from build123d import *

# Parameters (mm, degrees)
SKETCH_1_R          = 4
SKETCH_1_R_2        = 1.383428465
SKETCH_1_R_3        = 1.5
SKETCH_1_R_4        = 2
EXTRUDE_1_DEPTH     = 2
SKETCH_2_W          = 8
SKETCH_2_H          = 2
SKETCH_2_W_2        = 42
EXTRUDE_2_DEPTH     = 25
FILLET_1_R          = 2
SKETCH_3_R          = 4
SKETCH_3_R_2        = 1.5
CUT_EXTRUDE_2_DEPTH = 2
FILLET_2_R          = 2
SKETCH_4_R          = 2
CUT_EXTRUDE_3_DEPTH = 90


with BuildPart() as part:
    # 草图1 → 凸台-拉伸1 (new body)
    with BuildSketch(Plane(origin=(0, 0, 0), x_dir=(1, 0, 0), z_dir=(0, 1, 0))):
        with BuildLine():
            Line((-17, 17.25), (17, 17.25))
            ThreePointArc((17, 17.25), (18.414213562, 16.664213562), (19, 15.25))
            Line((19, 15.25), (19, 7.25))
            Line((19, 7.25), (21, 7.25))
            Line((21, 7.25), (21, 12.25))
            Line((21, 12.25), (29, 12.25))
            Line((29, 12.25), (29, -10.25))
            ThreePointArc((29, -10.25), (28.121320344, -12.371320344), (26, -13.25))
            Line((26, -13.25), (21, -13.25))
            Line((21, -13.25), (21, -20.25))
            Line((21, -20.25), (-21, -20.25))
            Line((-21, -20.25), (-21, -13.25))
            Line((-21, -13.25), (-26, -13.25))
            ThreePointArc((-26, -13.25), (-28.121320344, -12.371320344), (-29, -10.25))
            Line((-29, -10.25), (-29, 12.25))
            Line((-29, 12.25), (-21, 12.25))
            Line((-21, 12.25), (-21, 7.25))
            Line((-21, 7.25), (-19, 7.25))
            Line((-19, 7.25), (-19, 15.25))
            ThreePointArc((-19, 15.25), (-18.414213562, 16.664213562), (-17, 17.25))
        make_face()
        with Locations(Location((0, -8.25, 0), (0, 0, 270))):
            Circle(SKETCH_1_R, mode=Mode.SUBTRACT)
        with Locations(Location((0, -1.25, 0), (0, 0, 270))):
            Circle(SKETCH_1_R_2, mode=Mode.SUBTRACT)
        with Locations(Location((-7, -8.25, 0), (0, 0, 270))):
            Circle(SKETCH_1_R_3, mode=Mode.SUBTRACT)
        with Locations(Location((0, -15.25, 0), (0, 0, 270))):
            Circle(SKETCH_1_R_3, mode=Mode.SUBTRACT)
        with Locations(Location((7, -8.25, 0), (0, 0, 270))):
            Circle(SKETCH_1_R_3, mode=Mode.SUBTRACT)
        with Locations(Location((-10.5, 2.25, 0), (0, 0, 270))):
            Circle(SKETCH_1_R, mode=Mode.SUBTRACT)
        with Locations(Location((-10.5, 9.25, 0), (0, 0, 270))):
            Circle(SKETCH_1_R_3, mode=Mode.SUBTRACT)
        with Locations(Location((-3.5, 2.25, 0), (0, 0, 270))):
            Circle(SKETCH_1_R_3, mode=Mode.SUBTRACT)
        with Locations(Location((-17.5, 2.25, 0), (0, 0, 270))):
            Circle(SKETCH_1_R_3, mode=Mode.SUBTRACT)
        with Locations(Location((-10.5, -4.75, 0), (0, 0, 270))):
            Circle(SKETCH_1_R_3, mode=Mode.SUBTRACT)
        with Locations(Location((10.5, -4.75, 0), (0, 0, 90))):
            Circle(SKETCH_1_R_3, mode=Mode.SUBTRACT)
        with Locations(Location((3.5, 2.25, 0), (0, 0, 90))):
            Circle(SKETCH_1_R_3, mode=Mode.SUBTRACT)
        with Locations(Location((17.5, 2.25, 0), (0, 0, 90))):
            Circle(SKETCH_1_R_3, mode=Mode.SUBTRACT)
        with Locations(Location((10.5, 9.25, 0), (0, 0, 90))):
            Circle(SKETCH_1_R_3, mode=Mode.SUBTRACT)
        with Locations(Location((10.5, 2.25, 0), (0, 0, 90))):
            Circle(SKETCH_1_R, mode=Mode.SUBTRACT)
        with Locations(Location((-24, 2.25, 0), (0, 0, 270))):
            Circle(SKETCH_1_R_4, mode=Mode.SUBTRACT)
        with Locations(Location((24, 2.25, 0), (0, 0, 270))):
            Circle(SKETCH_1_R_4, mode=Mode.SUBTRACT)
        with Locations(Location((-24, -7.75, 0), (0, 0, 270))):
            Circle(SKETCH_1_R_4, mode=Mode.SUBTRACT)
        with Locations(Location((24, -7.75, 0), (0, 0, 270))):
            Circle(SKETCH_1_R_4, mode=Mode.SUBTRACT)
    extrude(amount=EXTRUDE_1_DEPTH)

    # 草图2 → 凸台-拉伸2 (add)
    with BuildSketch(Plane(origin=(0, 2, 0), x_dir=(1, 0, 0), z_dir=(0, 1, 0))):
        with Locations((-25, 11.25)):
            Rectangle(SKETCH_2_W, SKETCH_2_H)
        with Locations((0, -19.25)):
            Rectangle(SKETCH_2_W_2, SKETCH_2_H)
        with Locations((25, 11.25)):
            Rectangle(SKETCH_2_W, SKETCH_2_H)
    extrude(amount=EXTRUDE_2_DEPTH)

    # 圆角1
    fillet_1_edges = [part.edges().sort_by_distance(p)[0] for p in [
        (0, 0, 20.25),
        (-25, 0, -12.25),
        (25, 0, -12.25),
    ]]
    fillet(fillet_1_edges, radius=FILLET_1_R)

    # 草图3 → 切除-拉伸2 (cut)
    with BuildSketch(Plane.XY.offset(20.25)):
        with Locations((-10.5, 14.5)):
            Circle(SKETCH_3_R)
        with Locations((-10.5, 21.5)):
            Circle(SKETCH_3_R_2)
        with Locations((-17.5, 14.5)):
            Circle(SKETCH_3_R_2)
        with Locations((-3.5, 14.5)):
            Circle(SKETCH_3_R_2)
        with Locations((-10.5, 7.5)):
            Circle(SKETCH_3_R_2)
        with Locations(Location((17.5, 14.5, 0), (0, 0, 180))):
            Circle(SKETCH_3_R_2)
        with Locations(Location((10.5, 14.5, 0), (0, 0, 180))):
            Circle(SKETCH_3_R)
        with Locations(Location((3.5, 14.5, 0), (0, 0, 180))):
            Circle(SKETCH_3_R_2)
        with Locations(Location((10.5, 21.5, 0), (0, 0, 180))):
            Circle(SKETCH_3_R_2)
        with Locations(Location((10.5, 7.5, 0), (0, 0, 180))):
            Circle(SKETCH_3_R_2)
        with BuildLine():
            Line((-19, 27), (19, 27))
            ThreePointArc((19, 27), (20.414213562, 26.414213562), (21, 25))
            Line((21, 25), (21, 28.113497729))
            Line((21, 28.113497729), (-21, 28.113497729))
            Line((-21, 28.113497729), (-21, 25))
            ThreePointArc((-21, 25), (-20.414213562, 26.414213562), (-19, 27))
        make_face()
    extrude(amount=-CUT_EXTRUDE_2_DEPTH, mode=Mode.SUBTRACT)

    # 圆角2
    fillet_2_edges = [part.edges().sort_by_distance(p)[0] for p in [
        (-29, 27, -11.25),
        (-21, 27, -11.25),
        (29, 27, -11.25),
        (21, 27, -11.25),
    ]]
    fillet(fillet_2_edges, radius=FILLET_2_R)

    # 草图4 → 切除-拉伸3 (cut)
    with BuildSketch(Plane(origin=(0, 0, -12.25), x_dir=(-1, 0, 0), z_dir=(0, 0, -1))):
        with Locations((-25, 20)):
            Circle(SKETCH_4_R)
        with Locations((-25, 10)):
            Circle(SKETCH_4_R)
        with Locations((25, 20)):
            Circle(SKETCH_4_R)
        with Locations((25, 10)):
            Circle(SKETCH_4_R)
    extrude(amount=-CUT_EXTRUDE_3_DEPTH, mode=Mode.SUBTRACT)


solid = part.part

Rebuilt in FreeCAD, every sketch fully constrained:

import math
import FreeCAD as App
import Part
import Sketcher

V = App.Vector


def edges_at(feature, points):
    """Names of the edges that pass closest to the given points."""
    edges = feature.Shape.Edges
    near = lambda p: min(range(len(edges)), key=lambda i: edges[i].distToShape(Part.Vertex(*p))[0])
    return sorted({f"Edge{near(p) + 1}" for p in points})


def add_polygon(sketch, points):
    """Adds a closed chain of lines whose ends are joined by coincident constraints."""
    first, n = sketch.GeometryCount, len(points)
    for a, b in zip(points, points[1:] + points[:1]):
        sketch.addGeometry(Part.LineSegment(App.Vector(*a, 0), App.Vector(*b, 0)), False)
    for i in range(n):
        sketch.addConstraint(Sketcher.Constraint("Coincident", first + i, 2, first + (i + 1) % n, 1))

doc = App.newDocument("Part")
body = doc.addObject("PartDesign::Body", "Body")

# Sketch on XZ plane
sketch1 = doc.addObject("Sketcher::SketchObject", "Sketch")
body.addObject(sketch1)
sketch1.AttachmentSupport = (doc.XZ_Plane, [""])
sketch1.MapMode = "FlatFace"
sketch1.addGeometry([
    Part.LineSegment(V(17, -17.25, 0), V(-17, -17.25, 0)),  # 0
    Part.ArcOfCircle(Part.Circle(V(-17, -15.25, 0), V(0, 0, 1), 2), math.radians(-180), math.radians(-90)),  # 1
    Part.LineSegment(V(-19, -15.25, 0), V(-19, -7.25, 0)),  # 2
    Part.LineSegment(V(-19, -7.25, 0), V(-21, -7.25, 0)),  # 3
    Part.LineSegment(V(-21, -7.25, 0), V(-21, -12.25, 0)),  # 4
    Part.LineSegment(V(-21, -12.25, 0), V(-29, -12.25, 0)),  # 5
    Part.LineSegment(V(-29, -12.25, 0), V(-29, 10.25, 0)),  # 6
    Part.ArcOfCircle(Part.Circle(V(-26, 10.25, 0), V(0, 0, 1), 3), math.radians(90), math.radians(180)),  # 7
    Part.LineSegment(V(-26, 13.25, 0), V(-21, 13.25, 0)),  # 8
    Part.LineSegment(V(-21, 13.25, 0), V(-21, 20.25, 0)),  # 9
    Part.LineSegment(V(-21, 20.25, 0), V(21, 20.25, 0)),  # 10
    Part.LineSegment(V(21, 20.25, 0), V(21, 13.25, 0)),  # 11
    Part.LineSegment(V(21, 13.25, 0), V(26, 13.25, 0)),  # 12
    Part.ArcOfCircle(Part.Circle(V(26, 10.25, 0), V(0, 0, 1), 3), math.radians(0), math.radians(90)),  # 13
    Part.LineSegment(V(29, 10.25, 0), V(29, -12.25, 0)),  # 14
    Part.LineSegment(V(29, -12.25, 0), V(21, -12.25, 0)),  # 15
    Part.LineSegment(V(21, -12.25, 0), V(21, -7.25, 0)),  # 16
    Part.LineSegment(V(21, -7.25, 0), V(19, -7.25, 0)),  # 17
    Part.LineSegment(V(19, -7.25, 0), V(19, -15.25, 0)),  # 18
    Part.ArcOfCircle(Part.Circle(V(17, -15.25, 0), V(0, 0, 1), 2), math.radians(-90), math.radians(0)),  # 19
    Part.Circle(V(24, 7.75, 0), V(0, 0, 1), 2),  # 20
    Part.Circle(V(7, 8.25, 0), V(0, 0, 1), 1.5),  # 21
    Part.Circle(V(10.5, 4.75, 0), V(0, 0, 1), 1.5),  # 22
    Part.Circle(V(0, 15.25, 0), V(0, 0, 1), 1.5),  # 23
    Part.Circle(V(0, 8.25, 0), V(0, 0, 1), 4),  # 24
    Part.Circle(V(-7, 8.25, 0), V(0, 0, 1), 1.5),  # 25
    Part.Circle(V(-10.5, 4.75, 0), V(0, 0, 1), 1.5),  # 26
    Part.Circle(V(-24, 7.75, 0), V(0, 0, 1), 2),  # 27
    Part.Circle(V(24, -2.25, 0), V(0, 0, 1), 2),  # 28
    Part.Circle(V(17.5, -2.25, 0), V(0, 0, 1), 1.5),  # 29
    Part.Circle(V(10.5, -2.25, 0), V(0, 0, 1), 4),  # 30
    Part.Circle(V(3.5, -2.25, 0), V(0, 0, 1), 1.5),  # 31
    Part.Circle(V(10.5, -9.25, 0), V(0, 0, 1), 1.5),  # 32
    Part.Circle(V(0, 1.25, 0), V(0, 0, 1), 1.383428),  # 33
    Part.Circle(V(-3.5, -2.25, 0), V(0, 0, 1), 1.5),  # 34
    Part.Circle(V(-10.5, -2.25, 0), V(0, 0, 1), 4),  # 35
    Part.Circle(V(-17.5, -2.25, 0), V(0, 0, 1), 1.5),  # 36
    Part.Circle(V(-24, -2.25, 0), V(0, 0, 1), 2),  # 37
    Part.Circle(V(-10.5, -9.25, 0), V(0, 0, 1), 1.5),  # 38
], False)
sketch1.addConstraint([
    Sketcher.Constraint("Tangent", 0, 2, 1, 2),
    Sketcher.Constraint("Tangent", 1, 1, 2, 1),
    Sketcher.Constraint("Coincident", 2, 2, 3, 1),
    Sketcher.Constraint("Coincident", 3, 2, 4, 1),
    Sketcher.Constraint("Coincident", 4, 2, 5, 1),
    Sketcher.Constraint("Coincident", 5, 2, 6, 1),
    Sketcher.Constraint("Tangent", 6, 2, 7, 2),
    Sketcher.Constraint("Tangent", 7, 1, 8, 1),
    Sketcher.Constraint("Coincident", 8, 2, 9, 1),
    Sketcher.Constraint("Coincident", 9, 2, 10, 1),
    Sketcher.Constraint("Coincident", 10, 2, 11, 1),
    Sketcher.Constraint("Coincident", 11, 2, 12, 1),
    Sketcher.Constraint("Tangent", 12, 2, 13, 2),
    Sketcher.Constraint("Tangent", 13, 1, 14, 1),
    Sketcher.Constraint("Coincident", 14, 2, 15, 1),
    Sketcher.Constraint("Coincident", 15, 2, 16, 1),
    Sketcher.Constraint("Coincident", 16, 2, 17, 1),
    Sketcher.Constraint("Coincident", 17, 2, 18, 1),
    Sketcher.Constraint("Tangent", 18, 2, 19, 2),
    Sketcher.Constraint("Tangent", 19, 1, 0, 1),
    Sketcher.Constraint("Horizontal", 0),
    Sketcher.Constraint("Vertical", 2),
    Sketcher.Constraint("Horizontal", 3),
    Sketcher.Constraint("Vertical", 4),
    Sketcher.Constraint("Horizontal", 5),
    Sketcher.Constraint("Vertical", 6),
    Sketcher.Constraint("Horizontal", 8),
    Sketcher.Constraint("Vertical", 9),
    Sketcher.Constraint("Horizontal", 10),
    Sketcher.Constraint("Vertical", 11),
    Sketcher.Constraint("Horizontal", 12),
    Sketcher.Constraint("Vertical", 14),
    Sketcher.Constraint("Horizontal", 15),
    Sketcher.Constraint("Vertical", 16),
    Sketcher.Constraint("Horizontal", 17),
    Sketcher.Constraint("Vertical", 18),
    Sketcher.Constraint("Equal", 7, 13),
    Sketcher.Constraint("Equal", 1, 19),
    Sketcher.Constraint("Equal", 19, 20),
    Sketcher.Constraint("Equal", 21, 22),
    Sketcher.Constraint("Equal", 22, 23),
    Sketcher.Constraint("Equal", 23, 25),
    Sketcher.Constraint("Equal", 25, 26),
    Sketcher.Constraint("Equal", 20, 27),
    Sketcher.Constraint("Equal", 27, 28),
    Sketcher.Constraint("Equal", 26, 29),
    Sketcher.Constraint("Equal", 24, 30),
    Sketcher.Constraint("Equal", 29, 31),
    Sketcher.Constraint("Equal", 31, 32),
    Sketcher.Constraint("Equal", 32, 34),
    Sketcher.Constraint("Equal", 30, 35),
    Sketcher.Constraint("Equal", 34, 36),
    Sketcher.Constraint("Equal", 28, 37),
    Sketcher.Constraint("Equal", 36, 38),
    Sketcher.Constraint("Symmetric", 7, 3, 13, 3, -2),
    Sketcher.Constraint("Symmetric", 21, 3, 25, 3, -2),
    Sketcher.Constraint("Symmetric", 22, 3, 26, 3, -2),
    Sketcher.Constraint("Symmetric", 20, 3, 27, 3, -2),
    Sketcher.Constraint("Symmetric", 31, 3, 34, 3, -2),
    Sketcher.Constraint("Symmetric", 30, 3, 35, 3, -2),
    Sketcher.Constraint("Symmetric", 29, 3, 36, 3, -2),
    Sketcher.Constraint("Symmetric", 28, 3, 37, 3, -2),
    Sketcher.Constraint("Symmetric", 32, 3, 38, 3, -2),
    Sketcher.Constraint("Symmetric", 4, 2, 15, 2, -2),
    Sketcher.Constraint("Symmetric", 2, 2, 17, 2, -2),
    Sketcher.Constraint("PointOnObject", 23, 3, -2),
    Sketcher.Constraint("PointOnObject", 24, 3, -2),
    Sketcher.Constraint("PointOnObject", 33, 3, -2),
    Sketcher.Constraint("Horizontal", 21, 3, 24, 3),
    Sketcher.Constraint("Horizontal", 28, 3, 29, 3),
    Sketcher.Constraint("Horizontal", 29, 3, 30, 3),
    Sketcher.Constraint("Horizontal", 30, 3, 31, 3),
    Sketcher.Constraint("Vertical", 20, 3, 28, 3),
    Sketcher.Constraint("Vertical", 22, 3, 30, 3),
    Sketcher.Constraint("Vertical", 30, 3, 32, 3),
    Sketcher.Constraint("Vertical", 4, 2, 8, 2),
    Sketcher.Constraint("Vertical", 11, 2, 15, 2),
    Sketcher.Constraint("Equal", 15, 2),
    Sketcher.Constraint("Equal", 12, 4),
    Sketcher.Constraint("Diameter", 20, 4.0),
    Sketcher.Constraint("Diameter", 21, 3.0),
    Sketcher.Constraint("Diameter", 24, 8.0),
    Sketcher.Constraint("Radius", 7, 3.0),
    Sketcher.Constraint("DistanceX", 0, 2, 0, 1, 34.0),
    Sketcher.Constraint("DistanceX", 3, 2, 3, 1, 2.0),
    Sketcher.Constraint("DistanceX", 5, 2, 5, 1, 8.0),
    Sketcher.Constraint("DistanceY", 9, 1, 9, 2, 7.0),
    Sketcher.Constraint("DistanceY", 6, 1, 6, 2, 22.5),
    Sketcher.Constraint("DistanceX", -1, 1, 20, 3, 24.0),
    Sketcher.Constraint("DistanceX", -1, 1, 21, 3, 7.0),
    Sketcher.Constraint("DistanceY", 19, 3, 20, 3, 23.0),
    Sketcher.Constraint("DistanceY", 21, 3, 13, 3, 2.0),
    Sketcher.Constraint("DistanceY", 22, 3, 20, 3, 3.0),
    Sketcher.Constraint("DistanceY", 21, 3, 23, 3, 7.0),
    Sketcher.Constraint("DistanceY", 28, 3, 20, 3, 10.0),
    Sketcher.Constraint("DistanceX", 22, 3, 29, 3, 7.0),
    Sketcher.Constraint("DistanceX", 31, 3, 30, 3, 7.0),
    Sketcher.Constraint("DistanceY", 32, 3, 30, 3, 7.0),
    Sketcher.Constraint("DistanceY", 33, 3, 24, 3, 7.0),
    Sketcher.Constraint("DistanceX", 34, 3, 31, 3, 7.0),
    Sketcher.Constraint("DistanceY", 1, 3, -1, 1, 15.25),
    Sketcher.Constraint("Diameter", 33, 2.766857),
])
pad1 = doc.addObject("PartDesign::Pad", "Pad")
body.addObject(pad1)
pad1.Profile = sketch1
pad1.Length = 2
pad1.Reversed = True

# Sketch on XZ plane
sketch2 = doc.addObject("Sketcher::SketchObject", "Sketch001")
body.addObject(sketch2)
sketch2.AttachmentSupport = (doc.XZ_Plane, [""])
sketch2.MapMode = "FlatFace"
sketch2.AttachmentOffset = App.Placement(V(0, 0, -2), App.Rotation())
add_polygon(sketch2, [(-29, -12.25), (-29, -10.25), (-21, -10.25), (-21, -12.25)])  # lines 0-3
add_polygon(sketch2, [(-21, 18.25), (-21, 20.25), (21, 20.25), (21, 18.25)])  # lines 4-7
add_polygon(sketch2, [(21, -12.25), (21, -10.25), (29, -10.25), (29, -12.25)])  # lines 8-11
sketch2.addConstraint([
    Sketcher.Constraint("Vertical", 0),
    Sketcher.Constraint("Horizontal", 1),
    Sketcher.Constraint("Vertical", 2),
    Sketcher.Constraint("Horizontal", 3),
    Sketcher.Constraint("Vertical", 4),
    Sketcher.Constraint("Horizontal", 5),
    Sketcher.Constraint("Vertical", 6),
    Sketcher.Constraint("Horizontal", 7),
    Sketcher.Constraint("Vertical", 8),
    Sketcher.Constraint("Horizontal", 9),
    Sketcher.Constraint("Vertical", 10),
    Sketcher.Constraint("Horizontal", 11),
    Sketcher.Constraint("Symmetric", 1, 2, 8, 2, -2),
    Sketcher.Constraint("Symmetric", 3, 2, 10, 2, -2),
    Sketcher.Constraint("Vertical", 2, 2, 4, 2),
    Sketcher.Constraint("Vertical", 6, 2, 8, 2),
    Sketcher.Constraint("Equal", 2, 4),
    Sketcher.Constraint("DistanceX", 1, 1, 1, 2, 8.0),
    Sketcher.Constraint("DistanceX", 5, 1, 5, 2, 42.0),
    Sketcher.Constraint("DistanceY", 0, 1, 0, 2, 2.0),
    Sketcher.Constraint("DistanceY", 1, 2, 4, 2, 30.5),
    Sketcher.Constraint("DistanceY", 0, 2, -1, 1, 10.25),
])
pad2 = doc.addObject("PartDesign::Pad", "Pad001")
body.addObject(pad2)
pad2.Profile = sketch2
pad2.Length = 25
pad2.Reversed = True
doc.recompute()

fillet = doc.addObject("PartDesign::Fillet", "Fillet")
body.addObject(fillet)
fillet.Base = (pad2, edges_at(pad2, [(0, 0, 20.25), (-25, 0, -12.25), (25, 0, -12.25)]))
fillet.Radius = 2

# Sketch on XY plane
sketch3 = doc.addObject("Sketcher::SketchObject", "Sketch002")
body.addObject(sketch3)
sketch3.AttachmentSupport = (doc.XY_Plane, [""])
sketch3.MapMode = "FlatFace"
sketch3.AttachmentOffset = App.Placement(V(0, 0, 20.25), App.Rotation())
sketch3.addGeometry([
    Part.Circle(V(-10.5, 14.5, 0), V(0, 0, 1), 4),  # 0
    Part.Circle(V(-10.5, 21.5, 0), V(0, 0, 1), 1.5),  # 1
    Part.Circle(V(-17.5, 14.5, 0), V(0, 0, 1), 1.5),  # 2
    Part.Circle(V(-3.5, 14.5, 0), V(0, 0, 1), 1.5),  # 3
    Part.Circle(V(-10.5, 7.5, 0), V(0, 0, 1), 1.5),  # 4
    Part.Circle(V(17.5, 14.5, 0), V(0, 0, 1), 1.5),  # 5
    Part.Circle(V(10.5, 14.5, 0), V(0, 0, 1), 4),  # 6
    Part.Circle(V(3.5, 14.5, 0), V(0, 0, 1), 1.5),  # 7
    Part.Circle(V(10.5, 21.5, 0), V(0, 0, 1), 1.5),  # 8
    Part.Circle(V(10.5, 7.5, 0), V(0, 0, 1), 1.5),  # 9
    Part.LineSegment(V(-19, 27, 0), V(19, 27, 0)),  # 10
    Part.ArcOfCircle(Part.Circle(V(19, 25, 0), V(0, 0, 1), 2), math.radians(0), math.radians(90)),  # 11
    Part.LineSegment(V(21, 25, 0), V(21, 28.113498, 0)),  # 12
    Part.LineSegment(V(21, 28.113498, 0), V(-21, 28.113498, 0)),  # 13
    Part.LineSegment(V(-21, 28.113498, 0), V(-21, 25, 0)),  # 14
    Part.ArcOfCircle(Part.Circle(V(-19, 25, 0), V(0, 0, 1), 2), math.radians(90), math.radians(180)),  # 15
], False)
sketch3.addConstraint([
    Sketcher.Constraint("Tangent", 10, 2, 11, 2),
    Sketcher.Constraint("Tangent", 11, 1, 12, 1),
    Sketcher.Constraint("Coincident", 12, 2, 13, 1),
    Sketcher.Constraint("Coincident", 13, 2, 14, 1),
    Sketcher.Constraint("Tangent", 14, 2, 15, 2),
    Sketcher.Constraint("Tangent", 15, 1, 10, 1),
    Sketcher.Constraint("Horizontal", 10),
    Sketcher.Constraint("Vertical", 12),
    Sketcher.Constraint("Horizontal", 13),
    Sketcher.Constraint("Vertical", 14),
    Sketcher.Constraint("Equal", 1, 2),
    Sketcher.Constraint("Equal", 2, 3),
    Sketcher.Constraint("Equal", 3, 4),
    Sketcher.Constraint("Equal", 4, 5),
    Sketcher.Constraint("Equal", 0, 6),
    Sketcher.Constraint("Equal", 5, 7),
    Sketcher.Constraint("Equal", 7, 8),
    Sketcher.Constraint("Equal", 8, 9),
    Sketcher.Constraint("Equal", 11, 15),
    Sketcher.Constraint("Symmetric", 2, 3, 5, 3, -2),
    Sketcher.Constraint("Symmetric", 0, 3, 6, 3, -2),
    Sketcher.Constraint("Symmetric", 3, 3, 7, 3, -2),
    Sketcher.Constraint("Symmetric", 1, 3, 8, 3, -2),
    Sketcher.Constraint("Symmetric", 4, 3, 9, 3, -2),
    Sketcher.Constraint("Horizontal", 0, 3, 2, 3),
    Sketcher.Constraint("Horizontal", 2, 3, 3, 3),
    Sketcher.Constraint("Vertical", 0, 3, 1, 3),
    Sketcher.Constraint("Vertical", 1, 3, 4, 3),
    Sketcher.Constraint("Diameter", 0, 8.0),
    Sketcher.Constraint("Diameter", 1, 3.0),
    Sketcher.Constraint("Radius", 11, 2.0),
    Sketcher.Constraint("DistanceX", 10, 1, 10, 2, 38.0),
    Sketcher.Constraint("DistanceX", -1, 1, 11, 3, 19.0),
    Sketcher.Constraint("DistanceY", -1, 1, 11, 3, 25.0),
    Sketcher.Constraint("DistanceY", 0, 3, 1, 3, 7.0),
    Sketcher.Constraint("DistanceX", 2, 3, 0, 3, 7.0),
    Sketcher.Constraint("DistanceX", 0, 3, 3, 3, 7.0),
    Sketcher.Constraint("DistanceY", 4, 3, 0, 3, 7.0),
    Sketcher.Constraint("DistanceX", 3, 3, 5, 3, 21.0),
    Sketcher.Constraint("DistanceY", -1, 1, 0, 3, 14.5),
    Sketcher.Constraint("DistanceY", 12, 1, 12, 2, 3.113498),
])
pocket1 = doc.addObject("PartDesign::Pocket", "Pocket")
body.addObject(pocket1)
pocket1.Profile = sketch3
pocket1.Length = 2
doc.recompute()

fillet2 = doc.addObject("PartDesign::Fillet", "Fillet001")
body.addObject(fillet2)
fillet2.Base = (pocket1, edges_at(pocket1, [
    (-29, 27, -11.25),
    (-21, 27, -11.25),
    (29, 27, -11.25),
    (21, 27, -11.25),
]))
fillet2.Radius = 2

# Sketch on XY plane
sketch4 = doc.addObject("Sketcher::SketchObject", "Sketch003")
body.addObject(sketch4)
sketch4.AttachmentSupport = (doc.XY_Plane, [""])
sketch4.MapMode = "FlatFace"
sketch4.AttachmentOffset = App.Placement(V(0, 0, -12.25), App.Rotation())
sketch4.addGeometry([
    Part.Circle(V(25, 20, 0), V(0, 0, 1), 2),
    Part.Circle(V(25, 10, 0), V(0, 0, 1), 2),
    Part.Circle(V(-25, 20, 0), V(0, 0, 1), 2),
    Part.Circle(V(-25, 10, 0), V(0, 0, 1), 2),
], False)
sketch4.addConstraint([
    Sketcher.Constraint("Equal", 0, 1),
    Sketcher.Constraint("Equal", 1, 2),
    Sketcher.Constraint("Equal", 2, 3),
    Sketcher.Constraint("Symmetric", 0, 3, 2, 3, -2),
    Sketcher.Constraint("Symmetric", 1, 3, 3, 3, -2),
    Sketcher.Constraint("Vertical", 0, 3, 1, 3),
    Sketcher.Constraint("Diameter", 0, 4.0),
    Sketcher.Constraint("DistanceX", -1, 1, 0, 3, 25.0),
    Sketcher.Constraint("DistanceY", -1, 1, 0, 3, 20.0),
    Sketcher.Constraint("DistanceY", -1, 1, 1, 3, 10.0),
])
pocket2 = doc.addObject("PartDesign::Pocket", "Pocket001")
body.addObject(pocket2)
pocket2.Profile = sketch4
pocket2.Length = 90
pocket2.Reversed = True

doc.recompute()
